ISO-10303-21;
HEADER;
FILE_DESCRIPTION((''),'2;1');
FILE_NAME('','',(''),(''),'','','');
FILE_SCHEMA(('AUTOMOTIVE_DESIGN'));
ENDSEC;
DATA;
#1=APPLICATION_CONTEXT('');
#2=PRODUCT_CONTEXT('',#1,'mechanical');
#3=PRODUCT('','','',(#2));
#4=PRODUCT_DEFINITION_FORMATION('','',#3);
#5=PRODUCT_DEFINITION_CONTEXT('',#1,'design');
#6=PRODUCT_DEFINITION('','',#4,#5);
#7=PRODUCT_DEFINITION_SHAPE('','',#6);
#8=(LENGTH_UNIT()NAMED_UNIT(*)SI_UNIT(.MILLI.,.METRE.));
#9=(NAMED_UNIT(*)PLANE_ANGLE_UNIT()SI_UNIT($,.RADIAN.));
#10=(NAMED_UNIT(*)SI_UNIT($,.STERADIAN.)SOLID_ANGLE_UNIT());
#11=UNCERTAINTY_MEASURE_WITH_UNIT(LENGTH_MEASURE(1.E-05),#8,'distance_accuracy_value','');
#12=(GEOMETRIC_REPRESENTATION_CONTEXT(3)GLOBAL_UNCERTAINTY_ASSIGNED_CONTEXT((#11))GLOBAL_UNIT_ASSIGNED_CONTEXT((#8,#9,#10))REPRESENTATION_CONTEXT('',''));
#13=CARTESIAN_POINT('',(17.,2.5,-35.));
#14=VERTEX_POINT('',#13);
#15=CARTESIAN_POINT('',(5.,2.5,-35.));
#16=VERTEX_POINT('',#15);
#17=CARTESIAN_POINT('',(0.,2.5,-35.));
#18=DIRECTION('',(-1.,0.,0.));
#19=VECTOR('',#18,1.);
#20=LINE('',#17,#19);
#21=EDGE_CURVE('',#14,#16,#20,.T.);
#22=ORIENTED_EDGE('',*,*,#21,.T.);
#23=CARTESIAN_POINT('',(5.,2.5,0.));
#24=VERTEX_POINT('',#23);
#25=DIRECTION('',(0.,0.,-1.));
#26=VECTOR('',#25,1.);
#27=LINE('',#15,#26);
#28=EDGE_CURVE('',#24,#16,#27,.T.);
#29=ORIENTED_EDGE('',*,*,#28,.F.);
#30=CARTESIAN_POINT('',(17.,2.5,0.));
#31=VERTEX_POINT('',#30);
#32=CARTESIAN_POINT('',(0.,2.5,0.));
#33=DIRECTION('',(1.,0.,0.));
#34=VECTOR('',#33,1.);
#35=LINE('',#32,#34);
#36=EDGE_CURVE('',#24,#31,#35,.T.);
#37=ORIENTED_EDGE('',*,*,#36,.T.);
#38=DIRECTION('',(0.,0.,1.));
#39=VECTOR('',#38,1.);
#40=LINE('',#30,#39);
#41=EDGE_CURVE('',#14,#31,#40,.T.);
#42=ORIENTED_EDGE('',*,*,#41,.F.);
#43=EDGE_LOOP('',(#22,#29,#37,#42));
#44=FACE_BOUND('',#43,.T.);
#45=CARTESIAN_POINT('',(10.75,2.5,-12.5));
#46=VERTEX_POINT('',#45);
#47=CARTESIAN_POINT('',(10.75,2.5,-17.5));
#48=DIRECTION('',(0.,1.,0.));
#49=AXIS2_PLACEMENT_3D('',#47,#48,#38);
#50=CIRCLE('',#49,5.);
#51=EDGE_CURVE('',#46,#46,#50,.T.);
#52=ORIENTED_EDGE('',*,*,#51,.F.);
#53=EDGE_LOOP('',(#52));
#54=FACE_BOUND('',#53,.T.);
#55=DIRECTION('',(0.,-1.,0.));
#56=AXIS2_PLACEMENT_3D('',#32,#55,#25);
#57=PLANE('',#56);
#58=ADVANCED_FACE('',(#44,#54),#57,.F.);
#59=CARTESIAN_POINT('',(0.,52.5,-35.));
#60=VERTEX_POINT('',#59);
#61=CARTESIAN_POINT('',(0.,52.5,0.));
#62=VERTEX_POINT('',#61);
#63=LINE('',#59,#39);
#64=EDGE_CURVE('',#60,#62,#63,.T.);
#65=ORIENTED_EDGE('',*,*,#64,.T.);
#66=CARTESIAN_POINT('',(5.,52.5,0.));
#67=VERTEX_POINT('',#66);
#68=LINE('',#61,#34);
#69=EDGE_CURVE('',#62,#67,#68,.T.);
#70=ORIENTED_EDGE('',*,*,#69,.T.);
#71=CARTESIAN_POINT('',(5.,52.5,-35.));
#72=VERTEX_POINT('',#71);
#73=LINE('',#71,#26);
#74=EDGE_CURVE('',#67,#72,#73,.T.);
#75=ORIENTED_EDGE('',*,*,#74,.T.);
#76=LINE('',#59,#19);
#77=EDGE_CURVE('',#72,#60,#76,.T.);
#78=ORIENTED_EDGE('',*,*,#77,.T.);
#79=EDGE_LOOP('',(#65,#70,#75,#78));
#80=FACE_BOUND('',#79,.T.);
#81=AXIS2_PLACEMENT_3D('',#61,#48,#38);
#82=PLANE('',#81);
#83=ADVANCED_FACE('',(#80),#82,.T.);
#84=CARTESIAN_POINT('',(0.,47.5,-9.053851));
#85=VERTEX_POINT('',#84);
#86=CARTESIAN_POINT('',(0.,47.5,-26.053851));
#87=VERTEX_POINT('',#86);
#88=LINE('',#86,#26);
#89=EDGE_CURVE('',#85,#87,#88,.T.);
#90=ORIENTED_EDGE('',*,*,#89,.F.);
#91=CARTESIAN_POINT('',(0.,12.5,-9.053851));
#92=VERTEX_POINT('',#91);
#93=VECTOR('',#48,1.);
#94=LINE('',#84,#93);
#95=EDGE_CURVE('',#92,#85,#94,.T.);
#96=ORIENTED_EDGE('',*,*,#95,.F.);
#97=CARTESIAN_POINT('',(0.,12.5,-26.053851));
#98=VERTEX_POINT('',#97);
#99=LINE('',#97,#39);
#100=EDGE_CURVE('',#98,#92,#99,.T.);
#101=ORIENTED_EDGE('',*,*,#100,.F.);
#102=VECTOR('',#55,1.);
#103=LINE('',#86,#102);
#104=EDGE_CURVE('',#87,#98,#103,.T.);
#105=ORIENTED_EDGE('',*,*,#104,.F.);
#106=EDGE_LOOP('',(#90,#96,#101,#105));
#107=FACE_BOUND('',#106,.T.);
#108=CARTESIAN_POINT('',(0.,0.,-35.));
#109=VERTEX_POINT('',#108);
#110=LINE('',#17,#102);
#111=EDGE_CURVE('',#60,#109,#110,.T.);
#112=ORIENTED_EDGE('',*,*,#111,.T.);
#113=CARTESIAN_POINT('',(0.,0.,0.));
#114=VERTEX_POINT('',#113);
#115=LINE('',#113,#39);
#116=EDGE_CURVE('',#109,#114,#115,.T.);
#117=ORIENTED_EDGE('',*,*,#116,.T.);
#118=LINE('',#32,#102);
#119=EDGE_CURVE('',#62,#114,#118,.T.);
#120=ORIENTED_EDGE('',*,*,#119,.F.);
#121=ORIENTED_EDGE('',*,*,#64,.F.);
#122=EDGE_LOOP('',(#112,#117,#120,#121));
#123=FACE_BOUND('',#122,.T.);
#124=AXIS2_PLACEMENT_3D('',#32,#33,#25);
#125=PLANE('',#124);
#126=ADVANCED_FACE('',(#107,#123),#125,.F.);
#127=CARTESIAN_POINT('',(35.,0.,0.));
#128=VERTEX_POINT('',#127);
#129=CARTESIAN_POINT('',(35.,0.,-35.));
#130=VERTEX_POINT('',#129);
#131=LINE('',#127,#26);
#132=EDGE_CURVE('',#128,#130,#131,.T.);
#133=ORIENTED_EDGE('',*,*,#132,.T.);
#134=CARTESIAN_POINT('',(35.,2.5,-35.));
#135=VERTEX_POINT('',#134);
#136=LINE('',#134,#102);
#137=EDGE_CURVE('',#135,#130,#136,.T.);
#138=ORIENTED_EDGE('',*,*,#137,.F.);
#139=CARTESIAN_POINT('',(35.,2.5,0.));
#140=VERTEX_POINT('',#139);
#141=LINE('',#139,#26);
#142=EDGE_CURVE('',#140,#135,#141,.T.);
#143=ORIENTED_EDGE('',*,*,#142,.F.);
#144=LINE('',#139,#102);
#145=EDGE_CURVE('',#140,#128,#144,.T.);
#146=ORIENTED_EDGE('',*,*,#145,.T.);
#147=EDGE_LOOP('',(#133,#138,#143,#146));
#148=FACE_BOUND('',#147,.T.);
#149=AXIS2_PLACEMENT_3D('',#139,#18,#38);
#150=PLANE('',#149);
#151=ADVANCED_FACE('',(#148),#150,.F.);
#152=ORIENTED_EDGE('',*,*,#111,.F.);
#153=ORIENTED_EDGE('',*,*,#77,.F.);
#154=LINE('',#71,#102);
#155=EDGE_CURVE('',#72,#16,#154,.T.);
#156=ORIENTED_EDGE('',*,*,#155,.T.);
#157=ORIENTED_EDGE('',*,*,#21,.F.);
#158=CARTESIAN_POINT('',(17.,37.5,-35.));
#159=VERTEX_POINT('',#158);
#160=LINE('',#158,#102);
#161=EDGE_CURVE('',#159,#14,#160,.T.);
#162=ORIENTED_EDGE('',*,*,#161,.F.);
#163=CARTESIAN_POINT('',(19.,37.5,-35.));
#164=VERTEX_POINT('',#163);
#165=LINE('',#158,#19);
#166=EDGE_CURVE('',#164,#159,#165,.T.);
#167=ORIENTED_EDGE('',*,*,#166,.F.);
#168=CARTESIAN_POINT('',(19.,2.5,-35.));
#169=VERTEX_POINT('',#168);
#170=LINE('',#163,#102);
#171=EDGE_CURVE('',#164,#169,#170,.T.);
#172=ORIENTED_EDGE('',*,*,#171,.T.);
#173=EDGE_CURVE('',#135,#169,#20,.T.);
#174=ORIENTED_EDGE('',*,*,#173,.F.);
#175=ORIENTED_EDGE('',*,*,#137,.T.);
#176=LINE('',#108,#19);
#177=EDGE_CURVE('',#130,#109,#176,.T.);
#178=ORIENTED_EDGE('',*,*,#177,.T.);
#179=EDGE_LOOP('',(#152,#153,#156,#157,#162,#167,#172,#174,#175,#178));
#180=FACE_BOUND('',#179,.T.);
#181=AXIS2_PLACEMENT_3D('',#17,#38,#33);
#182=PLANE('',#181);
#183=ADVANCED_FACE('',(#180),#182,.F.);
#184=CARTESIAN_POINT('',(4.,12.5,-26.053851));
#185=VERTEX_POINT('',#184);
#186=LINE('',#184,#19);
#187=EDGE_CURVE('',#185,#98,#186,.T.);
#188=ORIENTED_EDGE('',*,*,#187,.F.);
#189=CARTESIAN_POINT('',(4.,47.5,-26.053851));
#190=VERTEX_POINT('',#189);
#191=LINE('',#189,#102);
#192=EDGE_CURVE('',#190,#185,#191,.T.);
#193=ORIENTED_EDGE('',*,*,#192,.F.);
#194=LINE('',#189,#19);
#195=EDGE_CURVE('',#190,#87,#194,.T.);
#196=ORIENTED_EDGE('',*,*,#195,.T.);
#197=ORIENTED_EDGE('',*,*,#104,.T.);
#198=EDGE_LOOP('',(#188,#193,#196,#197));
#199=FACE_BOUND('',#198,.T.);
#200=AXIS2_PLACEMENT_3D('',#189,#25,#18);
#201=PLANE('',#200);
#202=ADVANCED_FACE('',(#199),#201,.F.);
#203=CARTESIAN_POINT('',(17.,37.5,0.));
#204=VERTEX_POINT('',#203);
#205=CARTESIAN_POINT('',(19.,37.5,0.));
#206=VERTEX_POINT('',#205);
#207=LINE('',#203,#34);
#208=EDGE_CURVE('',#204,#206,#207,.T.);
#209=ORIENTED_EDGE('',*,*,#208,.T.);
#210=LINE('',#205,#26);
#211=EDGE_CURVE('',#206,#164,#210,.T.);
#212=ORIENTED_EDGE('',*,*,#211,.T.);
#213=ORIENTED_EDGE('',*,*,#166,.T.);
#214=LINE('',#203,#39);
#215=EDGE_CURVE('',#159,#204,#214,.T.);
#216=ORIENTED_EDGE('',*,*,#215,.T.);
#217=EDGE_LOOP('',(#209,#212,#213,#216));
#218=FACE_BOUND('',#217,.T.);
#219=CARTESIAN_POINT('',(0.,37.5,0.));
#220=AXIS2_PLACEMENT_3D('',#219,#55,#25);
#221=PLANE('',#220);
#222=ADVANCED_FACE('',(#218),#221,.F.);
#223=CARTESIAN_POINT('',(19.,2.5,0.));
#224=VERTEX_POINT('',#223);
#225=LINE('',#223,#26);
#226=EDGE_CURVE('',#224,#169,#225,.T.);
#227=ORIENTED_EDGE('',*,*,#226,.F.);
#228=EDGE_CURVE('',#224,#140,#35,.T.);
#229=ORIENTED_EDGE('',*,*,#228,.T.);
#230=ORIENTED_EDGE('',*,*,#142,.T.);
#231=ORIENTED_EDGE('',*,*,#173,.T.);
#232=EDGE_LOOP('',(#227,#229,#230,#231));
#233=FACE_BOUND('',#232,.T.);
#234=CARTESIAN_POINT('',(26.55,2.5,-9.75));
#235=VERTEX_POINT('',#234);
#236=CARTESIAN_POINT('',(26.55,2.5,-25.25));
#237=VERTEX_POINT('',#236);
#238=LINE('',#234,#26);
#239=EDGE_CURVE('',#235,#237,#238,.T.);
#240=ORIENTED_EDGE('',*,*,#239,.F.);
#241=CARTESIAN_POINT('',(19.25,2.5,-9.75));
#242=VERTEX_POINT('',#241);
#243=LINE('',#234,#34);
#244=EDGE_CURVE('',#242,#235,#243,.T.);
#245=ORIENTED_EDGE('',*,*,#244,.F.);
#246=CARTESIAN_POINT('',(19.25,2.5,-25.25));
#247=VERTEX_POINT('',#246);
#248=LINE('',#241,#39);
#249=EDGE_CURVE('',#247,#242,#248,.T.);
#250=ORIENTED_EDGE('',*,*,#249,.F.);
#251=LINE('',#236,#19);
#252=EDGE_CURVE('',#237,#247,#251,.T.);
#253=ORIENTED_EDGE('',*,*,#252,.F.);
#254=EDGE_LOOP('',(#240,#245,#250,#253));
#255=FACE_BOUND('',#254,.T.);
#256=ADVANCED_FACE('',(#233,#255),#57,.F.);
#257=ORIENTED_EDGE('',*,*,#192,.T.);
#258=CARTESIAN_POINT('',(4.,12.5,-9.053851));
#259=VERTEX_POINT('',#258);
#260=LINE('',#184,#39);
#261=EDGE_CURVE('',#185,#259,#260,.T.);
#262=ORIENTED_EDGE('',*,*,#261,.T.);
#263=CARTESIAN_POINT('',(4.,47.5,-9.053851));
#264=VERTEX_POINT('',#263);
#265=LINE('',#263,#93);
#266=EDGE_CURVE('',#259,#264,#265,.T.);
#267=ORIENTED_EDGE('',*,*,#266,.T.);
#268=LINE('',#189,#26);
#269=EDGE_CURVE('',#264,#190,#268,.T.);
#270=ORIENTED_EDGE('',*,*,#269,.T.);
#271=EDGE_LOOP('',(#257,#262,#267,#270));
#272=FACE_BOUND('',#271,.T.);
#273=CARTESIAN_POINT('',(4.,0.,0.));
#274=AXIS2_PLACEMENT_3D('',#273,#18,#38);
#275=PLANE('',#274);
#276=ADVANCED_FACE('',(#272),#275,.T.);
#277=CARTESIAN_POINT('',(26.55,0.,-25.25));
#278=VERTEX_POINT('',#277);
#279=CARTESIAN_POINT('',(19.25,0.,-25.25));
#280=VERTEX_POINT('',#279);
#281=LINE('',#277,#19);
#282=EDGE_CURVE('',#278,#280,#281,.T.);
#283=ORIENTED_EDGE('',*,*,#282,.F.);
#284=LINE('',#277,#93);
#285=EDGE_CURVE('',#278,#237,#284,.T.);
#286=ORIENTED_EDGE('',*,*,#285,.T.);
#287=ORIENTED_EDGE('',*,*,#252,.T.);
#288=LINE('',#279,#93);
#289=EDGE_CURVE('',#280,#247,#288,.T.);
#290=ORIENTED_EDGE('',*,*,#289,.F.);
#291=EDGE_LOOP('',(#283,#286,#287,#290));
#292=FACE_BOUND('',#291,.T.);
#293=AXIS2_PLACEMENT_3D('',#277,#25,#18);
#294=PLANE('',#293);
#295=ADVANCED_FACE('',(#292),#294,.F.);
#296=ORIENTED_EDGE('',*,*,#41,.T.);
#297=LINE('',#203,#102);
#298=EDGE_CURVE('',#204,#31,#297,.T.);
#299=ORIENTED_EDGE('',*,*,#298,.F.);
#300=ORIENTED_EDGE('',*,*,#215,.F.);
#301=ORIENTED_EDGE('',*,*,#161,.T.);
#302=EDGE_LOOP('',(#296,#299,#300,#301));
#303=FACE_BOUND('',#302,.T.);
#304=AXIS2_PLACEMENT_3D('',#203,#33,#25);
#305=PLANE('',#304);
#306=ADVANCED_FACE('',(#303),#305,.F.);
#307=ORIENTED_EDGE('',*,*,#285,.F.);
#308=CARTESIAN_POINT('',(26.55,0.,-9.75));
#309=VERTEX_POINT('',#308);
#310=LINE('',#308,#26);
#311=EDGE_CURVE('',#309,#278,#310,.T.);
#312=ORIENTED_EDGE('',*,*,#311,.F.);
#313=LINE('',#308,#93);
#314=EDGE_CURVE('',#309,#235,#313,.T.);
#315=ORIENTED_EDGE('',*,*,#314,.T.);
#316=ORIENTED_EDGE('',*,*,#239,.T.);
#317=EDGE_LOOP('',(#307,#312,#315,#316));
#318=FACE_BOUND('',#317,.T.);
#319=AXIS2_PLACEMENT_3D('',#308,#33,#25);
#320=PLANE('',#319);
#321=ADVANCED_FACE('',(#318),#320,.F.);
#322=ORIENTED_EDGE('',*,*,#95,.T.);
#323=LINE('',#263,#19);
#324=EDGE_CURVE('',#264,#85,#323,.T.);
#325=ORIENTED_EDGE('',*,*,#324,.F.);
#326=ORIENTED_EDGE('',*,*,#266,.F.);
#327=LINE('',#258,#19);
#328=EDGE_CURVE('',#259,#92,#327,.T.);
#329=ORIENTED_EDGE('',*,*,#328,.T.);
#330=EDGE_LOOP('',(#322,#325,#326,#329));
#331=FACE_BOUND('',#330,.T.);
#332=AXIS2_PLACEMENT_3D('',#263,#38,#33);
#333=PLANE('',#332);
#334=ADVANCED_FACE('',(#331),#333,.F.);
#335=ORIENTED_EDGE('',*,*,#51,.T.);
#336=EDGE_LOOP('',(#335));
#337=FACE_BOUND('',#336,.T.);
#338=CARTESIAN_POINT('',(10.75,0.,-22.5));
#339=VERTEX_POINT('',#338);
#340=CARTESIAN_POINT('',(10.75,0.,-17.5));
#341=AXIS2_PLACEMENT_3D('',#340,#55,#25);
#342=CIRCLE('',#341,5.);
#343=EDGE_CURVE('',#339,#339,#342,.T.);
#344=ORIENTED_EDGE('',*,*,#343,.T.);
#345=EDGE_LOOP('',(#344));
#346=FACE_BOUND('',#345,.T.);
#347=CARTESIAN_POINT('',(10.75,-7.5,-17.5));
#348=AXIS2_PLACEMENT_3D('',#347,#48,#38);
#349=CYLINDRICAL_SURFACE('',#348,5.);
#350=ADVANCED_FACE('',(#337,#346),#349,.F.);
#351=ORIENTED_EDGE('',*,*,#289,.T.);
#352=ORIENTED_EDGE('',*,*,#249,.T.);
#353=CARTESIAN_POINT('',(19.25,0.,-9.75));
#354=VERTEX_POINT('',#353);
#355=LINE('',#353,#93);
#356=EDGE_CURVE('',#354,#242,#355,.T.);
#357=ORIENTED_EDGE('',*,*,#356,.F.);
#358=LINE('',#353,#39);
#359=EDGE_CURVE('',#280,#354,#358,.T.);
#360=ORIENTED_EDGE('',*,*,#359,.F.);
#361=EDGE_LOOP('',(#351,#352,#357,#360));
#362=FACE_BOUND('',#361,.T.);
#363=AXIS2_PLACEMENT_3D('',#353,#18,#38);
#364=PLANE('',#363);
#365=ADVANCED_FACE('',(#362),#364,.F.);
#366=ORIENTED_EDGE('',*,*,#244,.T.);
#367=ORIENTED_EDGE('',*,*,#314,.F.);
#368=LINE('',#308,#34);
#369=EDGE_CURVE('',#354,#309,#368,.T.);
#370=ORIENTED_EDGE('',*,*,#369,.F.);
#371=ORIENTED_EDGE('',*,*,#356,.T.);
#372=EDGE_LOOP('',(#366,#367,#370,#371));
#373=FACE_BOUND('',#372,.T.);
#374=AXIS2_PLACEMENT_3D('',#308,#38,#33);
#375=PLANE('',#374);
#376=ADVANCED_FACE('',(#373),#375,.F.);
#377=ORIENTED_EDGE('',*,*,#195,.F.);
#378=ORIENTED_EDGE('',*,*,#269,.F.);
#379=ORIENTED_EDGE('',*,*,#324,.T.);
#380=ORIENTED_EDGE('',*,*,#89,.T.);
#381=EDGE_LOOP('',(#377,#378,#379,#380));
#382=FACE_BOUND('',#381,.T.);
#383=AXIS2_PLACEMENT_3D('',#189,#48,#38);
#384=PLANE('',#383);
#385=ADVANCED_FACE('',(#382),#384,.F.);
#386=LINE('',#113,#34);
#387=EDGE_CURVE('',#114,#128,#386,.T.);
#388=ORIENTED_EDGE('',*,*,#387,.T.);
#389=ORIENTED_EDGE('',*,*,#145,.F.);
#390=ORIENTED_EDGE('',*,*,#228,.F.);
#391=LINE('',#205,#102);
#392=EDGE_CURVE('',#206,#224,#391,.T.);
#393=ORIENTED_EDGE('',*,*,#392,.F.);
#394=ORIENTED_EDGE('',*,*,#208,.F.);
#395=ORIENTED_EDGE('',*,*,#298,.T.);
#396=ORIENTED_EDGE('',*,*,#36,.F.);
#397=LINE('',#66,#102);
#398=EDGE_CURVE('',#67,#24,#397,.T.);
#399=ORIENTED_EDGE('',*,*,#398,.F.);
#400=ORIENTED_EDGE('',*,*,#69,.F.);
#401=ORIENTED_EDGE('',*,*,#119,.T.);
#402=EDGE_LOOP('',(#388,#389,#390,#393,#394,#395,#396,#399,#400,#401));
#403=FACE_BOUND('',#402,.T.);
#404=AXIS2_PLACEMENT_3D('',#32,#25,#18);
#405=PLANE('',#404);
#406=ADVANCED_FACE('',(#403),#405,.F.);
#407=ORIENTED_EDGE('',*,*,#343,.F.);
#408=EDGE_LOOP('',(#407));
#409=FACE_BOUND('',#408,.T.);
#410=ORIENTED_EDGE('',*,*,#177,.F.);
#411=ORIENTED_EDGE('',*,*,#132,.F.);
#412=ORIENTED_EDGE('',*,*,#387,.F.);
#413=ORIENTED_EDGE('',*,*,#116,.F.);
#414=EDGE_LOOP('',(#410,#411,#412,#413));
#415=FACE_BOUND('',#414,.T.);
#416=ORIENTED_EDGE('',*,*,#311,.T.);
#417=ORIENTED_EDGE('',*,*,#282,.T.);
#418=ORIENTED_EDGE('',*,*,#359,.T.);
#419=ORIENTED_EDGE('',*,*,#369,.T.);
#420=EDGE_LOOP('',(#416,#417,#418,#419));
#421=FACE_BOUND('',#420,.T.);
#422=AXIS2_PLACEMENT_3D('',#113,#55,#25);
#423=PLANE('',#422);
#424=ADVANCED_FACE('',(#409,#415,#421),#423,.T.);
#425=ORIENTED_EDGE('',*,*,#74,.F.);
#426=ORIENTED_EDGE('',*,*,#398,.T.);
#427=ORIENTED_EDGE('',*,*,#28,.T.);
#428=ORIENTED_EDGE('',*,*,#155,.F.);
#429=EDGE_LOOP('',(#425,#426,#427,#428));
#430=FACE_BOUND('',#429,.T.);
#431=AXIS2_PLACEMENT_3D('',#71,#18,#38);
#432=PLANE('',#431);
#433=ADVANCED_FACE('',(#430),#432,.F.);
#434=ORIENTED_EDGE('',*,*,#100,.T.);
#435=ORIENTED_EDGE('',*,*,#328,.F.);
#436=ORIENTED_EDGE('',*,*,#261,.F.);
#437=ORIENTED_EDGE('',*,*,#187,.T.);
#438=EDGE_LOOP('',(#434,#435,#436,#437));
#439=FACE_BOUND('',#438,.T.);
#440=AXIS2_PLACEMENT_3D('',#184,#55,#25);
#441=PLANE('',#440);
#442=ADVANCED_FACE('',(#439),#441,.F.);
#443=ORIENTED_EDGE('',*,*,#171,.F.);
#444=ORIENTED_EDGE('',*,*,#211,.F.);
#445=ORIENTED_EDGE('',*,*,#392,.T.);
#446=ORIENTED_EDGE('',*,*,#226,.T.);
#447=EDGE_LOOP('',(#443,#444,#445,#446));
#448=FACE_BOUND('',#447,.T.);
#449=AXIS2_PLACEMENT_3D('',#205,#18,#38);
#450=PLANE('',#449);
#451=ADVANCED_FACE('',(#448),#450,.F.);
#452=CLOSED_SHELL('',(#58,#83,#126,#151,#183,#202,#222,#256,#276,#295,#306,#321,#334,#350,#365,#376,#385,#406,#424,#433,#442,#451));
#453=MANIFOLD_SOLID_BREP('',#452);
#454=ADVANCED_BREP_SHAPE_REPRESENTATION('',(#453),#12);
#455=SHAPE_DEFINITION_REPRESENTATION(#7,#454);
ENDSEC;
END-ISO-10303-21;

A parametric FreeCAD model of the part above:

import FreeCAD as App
import Part
import Sketcher
Q = App.Units.Quantity


def add_polygon(sketch, points):
    """Adds a closed chain of lines whose ends are joined by coincident constraints."""
    first, n = sketch.GeometryCount, len(points)
    for a, b in zip(points, points[1:] + points[:1]):
        sketch.addGeometry(Part.LineSegment(App.Vector(*a, 0), App.Vector(*b, 0)), False)
    for i in range(n):
        sketch.addConstraint(Sketcher.Constraint("Coincident", first + i, 2, first + (i + 1) % n, 1))

doc = App.newDocument("Part")
body = doc.addObject("PartDesign::Body", "Body")

# Sketch on XZ plane
sketch1 = body.newObject("Sketcher::SketchObject", "Sketch")
sketch1.AttachmentSupport = (doc.getObject("XZ_Plane"), [""])
sketch1.MapMode = "FlatFace"
add_polygon(sketch1, [(0, -35), (0, 0), (35, 0), (35, -35)])  # lines 0-3
sketch1.addConstraint(Sketcher.Constraint("Vertical", 0))
sketch1.addConstraint(Sketcher.Constraint("Horizontal", 1))
sketch1.addConstraint(Sketcher.Constraint("Vertical", 2))
sketch1.addConstraint(Sketcher.Constraint("Horizontal", 3))
sketch1.addConstraint(Sketcher.Constraint("Coincident", 0, 2, -1, 1))
sketch1.addConstraint(Sketcher.Constraint("Equal", 3, 0))
sketch1.addConstraint(Sketcher.Constraint("DistanceX", 1, 1, 1, 2, Q("35 mm")))
pad1 = body.newObject("PartDesign::Pad", "Pad")
pad1.Profile = sketch1
pad1.Length = 2.5
pad1.Reversed = True

# Sketch on XZ plane
sketch2 = body.newObject("Sketcher::SketchObject", "Sketch001")
sketch2.AttachmentSupport = (doc.getObject("XZ_Plane"), [""])
sketch2.MapMode = "FlatFace"
sketch2.AttachmentOffset = App.Placement(App.Vector(0, 0, -2.5), App.Rotation())
add_polygon(sketch2, [(0, -35), (0, 0), (5, 0), (5, -35)])  # lines 0-3
sketch2.addConstraint(Sketcher.Constraint("Vertical", 0))
sketch2.addConstraint(Sketcher.Constraint("Horizontal", 1))
sketch2.addConstraint(Sketcher.Constraint("Vertical", 2))
sketch2.addConstraint(Sketcher.Constraint("Horizontal", 3))
sketch2.addConstraint(Sketcher.Constraint("Coincident", 0, 2, -1, 1))
sketch2.addConstraint(Sketcher.Constraint("DistanceX", 1, 1, 1, 2, Q("5 mm")))
sketch2.addConstraint(Sketcher.Constraint("DistanceY", 0, 1, 0, 2, Q("35 mm")))
pad2 = body.newObject("PartDesign::Pad", "Pad001")
pad2.Profile = sketch2
pad2.Length = 50
pad2.Reversed = True

# Sketch on YZ plane
sketch3 = body.newObject("Sketcher::SketchObject", "Sketch002")
sketch3.AttachmentSupport = (doc.getObject("YZ_Plane"), [""])
sketch3.MapMode = "FlatFace"
add_polygon(sketch3, [(48, -26), (12, -26), (12, -9), (48, -9)])  # lines 0-3
sketch3.addConstraint(Sketcher.Constraint("Horizontal", 0))
sketch3.addConstraint(Sketcher.Constraint("Vertical", 1))
sketch3.addConstraint(Sketcher.Constraint("Horizontal", 2))
sketch3.addConstraint(Sketcher.Constraint("Vertical", 3))
sketch3.addConstraint(Sketcher.Constraint("DistanceX", 0, 2, 0, 1, Q("35 mm")))
sketch3.addConstraint(Sketcher.Constraint("DistanceY", 1, 1, 1, 2, Q("17 mm")))
sketch3.addConstraint(Sketcher.Constraint("DistanceX", -1, 1, 0, 2, Q("12.5 mm")))
sketch3.addConstraint(Sketcher.Constraint("DistanceY", 0, 2, -1, 1, Q("26.053851 mm")))
pocket1 = body.newObject("PartDesign::Pocket", "Pocket")
pocket1.Profile = sketch3
pocket1.Length = 4
pocket1.Reversed = True

# Sketch on XZ plane
sketch4 = body.newObject("Sketcher::SketchObject", "Sketch003")
sketch4.AttachmentSupport = (doc.getObject("XZ_Plane"), [""])
sketch4.MapMode = "FlatFace"
sketch4.AttachmentOffset = App.Placement(App.Vector(0, 0, -2.5), App.Rotation())
sketch4.addGeometry(Part.Circle(App.Vector(11, -18, 0), App.Vector(0, 0, 1), 5), False)
sketch4.addConstraint(Sketcher.Constraint("Diameter", 0, Q("10 mm")))
sketch4.addConstraint(Sketcher.Constraint("DistanceY", 0, 3, -1, 1, Q("17.5 mm")))
sketch4.addConstraint(Sketcher.Constraint("DistanceX", -1, 1, 0, 3, Q("10.75 mm")))
pocket2 = body.newObject("PartDesign::Pocket", "Pocket001")
pocket2.Profile = sketch4
pocket2.Length = 10
pocket2.Reversed = True

# Sketch on XZ plane
sketch5 = body.newObject("Sketcher::SketchObject", "Sketch004")
sketch5.AttachmentSupport = (doc.getObject("XZ_Plane"), [""])
sketch5.MapMode = "FlatFace"
sketch5.AttachmentOffset = App.Placement(App.Vector(0, 0, -2.5), App.Rotation())
add_polygon(sketch5, [(17, -35), (17, 0), (19, 0), (19, -35)])  # lines 0-3
sketch5.addConstraint(Sketcher.Constraint("Vertical", 0))
sketch5.addConstraint(Sketcher.Constraint("Horizontal", 1))
sketch5.addConstraint(Sketcher.Constraint("Vertical", 2))
sketch5.addConstraint(Sketcher.Constraint("Horizontal", 3))
sketch5.addConstraint(Sketcher.Constraint("PointOnObject", 0, 2, -1))
sketch5.addConstraint(Sketcher.Constraint("DistanceX", 1, 1, 1, 2, Q("2 mm")))
sketch5.addConstraint(Sketcher.Constraint("DistanceY", 0, 1, 0, 2, Q("35 mm")))
sketch5.addConstraint(Sketcher.Constraint("DistanceX", -1, 1, 0, 2, Q("17 mm")))
pad3 = body.newObject("PartDesign::Pad", "Pad002")
pad3.Profile = sketch5
pad3.Length = 35
pad3.Reversed = True

# Sketch on XZ plane
sketch6 = body.newObject("Sketcher::SketchObject", "Sketch005")
sketch6.AttachmentSupport = (doc.getObject("XZ_Plane"), [""])
sketch6.MapMode = "FlatFace"
sketch6.AttachmentOffset = App.Placement(App.Vector(0, 0, -2.5), App.Rotation())
add_polygon(sketch6, [(19, -25), (19, -10), (27, -10), (27, -25)])  # lines 0-3
sketch6.addConstraint(Sketcher.Constraint("Vertical", 0))
sketch6.addConstraint(Sketcher.Constraint("Horizontal", 1))
sketch6.addConstraint(Sketcher.Constraint("Vertical", 2))
sketch6.addConstraint(Sketcher.Constraint("Horizontal", 3))
sketch6.addConstraint(Sketcher.Constraint("DistanceX", 1, 1, 1, 2, Q("7.3 mm")))
sketch6.addConstraint(Sketcher.Constraint("DistanceY", 0, 1, 0, 2, Q("15.5 mm")))
sketch6.addConstraint(Sketcher.Constraint("DistanceX", -1, 1, 0, 2, Q("19.25 mm")))
sketch6.addConstraint(Sketcher.Constraint("DistanceY", 0, 2, -1, 1, Q("9.75 mm")))
pocket3 = body.newObject("PartDesign::Pocket", "Pocket002")
pocket3.Profile = sketch6
pocket3.Type = "ThroughAll"
pocket3.Reversed = True

doc.recompute()
